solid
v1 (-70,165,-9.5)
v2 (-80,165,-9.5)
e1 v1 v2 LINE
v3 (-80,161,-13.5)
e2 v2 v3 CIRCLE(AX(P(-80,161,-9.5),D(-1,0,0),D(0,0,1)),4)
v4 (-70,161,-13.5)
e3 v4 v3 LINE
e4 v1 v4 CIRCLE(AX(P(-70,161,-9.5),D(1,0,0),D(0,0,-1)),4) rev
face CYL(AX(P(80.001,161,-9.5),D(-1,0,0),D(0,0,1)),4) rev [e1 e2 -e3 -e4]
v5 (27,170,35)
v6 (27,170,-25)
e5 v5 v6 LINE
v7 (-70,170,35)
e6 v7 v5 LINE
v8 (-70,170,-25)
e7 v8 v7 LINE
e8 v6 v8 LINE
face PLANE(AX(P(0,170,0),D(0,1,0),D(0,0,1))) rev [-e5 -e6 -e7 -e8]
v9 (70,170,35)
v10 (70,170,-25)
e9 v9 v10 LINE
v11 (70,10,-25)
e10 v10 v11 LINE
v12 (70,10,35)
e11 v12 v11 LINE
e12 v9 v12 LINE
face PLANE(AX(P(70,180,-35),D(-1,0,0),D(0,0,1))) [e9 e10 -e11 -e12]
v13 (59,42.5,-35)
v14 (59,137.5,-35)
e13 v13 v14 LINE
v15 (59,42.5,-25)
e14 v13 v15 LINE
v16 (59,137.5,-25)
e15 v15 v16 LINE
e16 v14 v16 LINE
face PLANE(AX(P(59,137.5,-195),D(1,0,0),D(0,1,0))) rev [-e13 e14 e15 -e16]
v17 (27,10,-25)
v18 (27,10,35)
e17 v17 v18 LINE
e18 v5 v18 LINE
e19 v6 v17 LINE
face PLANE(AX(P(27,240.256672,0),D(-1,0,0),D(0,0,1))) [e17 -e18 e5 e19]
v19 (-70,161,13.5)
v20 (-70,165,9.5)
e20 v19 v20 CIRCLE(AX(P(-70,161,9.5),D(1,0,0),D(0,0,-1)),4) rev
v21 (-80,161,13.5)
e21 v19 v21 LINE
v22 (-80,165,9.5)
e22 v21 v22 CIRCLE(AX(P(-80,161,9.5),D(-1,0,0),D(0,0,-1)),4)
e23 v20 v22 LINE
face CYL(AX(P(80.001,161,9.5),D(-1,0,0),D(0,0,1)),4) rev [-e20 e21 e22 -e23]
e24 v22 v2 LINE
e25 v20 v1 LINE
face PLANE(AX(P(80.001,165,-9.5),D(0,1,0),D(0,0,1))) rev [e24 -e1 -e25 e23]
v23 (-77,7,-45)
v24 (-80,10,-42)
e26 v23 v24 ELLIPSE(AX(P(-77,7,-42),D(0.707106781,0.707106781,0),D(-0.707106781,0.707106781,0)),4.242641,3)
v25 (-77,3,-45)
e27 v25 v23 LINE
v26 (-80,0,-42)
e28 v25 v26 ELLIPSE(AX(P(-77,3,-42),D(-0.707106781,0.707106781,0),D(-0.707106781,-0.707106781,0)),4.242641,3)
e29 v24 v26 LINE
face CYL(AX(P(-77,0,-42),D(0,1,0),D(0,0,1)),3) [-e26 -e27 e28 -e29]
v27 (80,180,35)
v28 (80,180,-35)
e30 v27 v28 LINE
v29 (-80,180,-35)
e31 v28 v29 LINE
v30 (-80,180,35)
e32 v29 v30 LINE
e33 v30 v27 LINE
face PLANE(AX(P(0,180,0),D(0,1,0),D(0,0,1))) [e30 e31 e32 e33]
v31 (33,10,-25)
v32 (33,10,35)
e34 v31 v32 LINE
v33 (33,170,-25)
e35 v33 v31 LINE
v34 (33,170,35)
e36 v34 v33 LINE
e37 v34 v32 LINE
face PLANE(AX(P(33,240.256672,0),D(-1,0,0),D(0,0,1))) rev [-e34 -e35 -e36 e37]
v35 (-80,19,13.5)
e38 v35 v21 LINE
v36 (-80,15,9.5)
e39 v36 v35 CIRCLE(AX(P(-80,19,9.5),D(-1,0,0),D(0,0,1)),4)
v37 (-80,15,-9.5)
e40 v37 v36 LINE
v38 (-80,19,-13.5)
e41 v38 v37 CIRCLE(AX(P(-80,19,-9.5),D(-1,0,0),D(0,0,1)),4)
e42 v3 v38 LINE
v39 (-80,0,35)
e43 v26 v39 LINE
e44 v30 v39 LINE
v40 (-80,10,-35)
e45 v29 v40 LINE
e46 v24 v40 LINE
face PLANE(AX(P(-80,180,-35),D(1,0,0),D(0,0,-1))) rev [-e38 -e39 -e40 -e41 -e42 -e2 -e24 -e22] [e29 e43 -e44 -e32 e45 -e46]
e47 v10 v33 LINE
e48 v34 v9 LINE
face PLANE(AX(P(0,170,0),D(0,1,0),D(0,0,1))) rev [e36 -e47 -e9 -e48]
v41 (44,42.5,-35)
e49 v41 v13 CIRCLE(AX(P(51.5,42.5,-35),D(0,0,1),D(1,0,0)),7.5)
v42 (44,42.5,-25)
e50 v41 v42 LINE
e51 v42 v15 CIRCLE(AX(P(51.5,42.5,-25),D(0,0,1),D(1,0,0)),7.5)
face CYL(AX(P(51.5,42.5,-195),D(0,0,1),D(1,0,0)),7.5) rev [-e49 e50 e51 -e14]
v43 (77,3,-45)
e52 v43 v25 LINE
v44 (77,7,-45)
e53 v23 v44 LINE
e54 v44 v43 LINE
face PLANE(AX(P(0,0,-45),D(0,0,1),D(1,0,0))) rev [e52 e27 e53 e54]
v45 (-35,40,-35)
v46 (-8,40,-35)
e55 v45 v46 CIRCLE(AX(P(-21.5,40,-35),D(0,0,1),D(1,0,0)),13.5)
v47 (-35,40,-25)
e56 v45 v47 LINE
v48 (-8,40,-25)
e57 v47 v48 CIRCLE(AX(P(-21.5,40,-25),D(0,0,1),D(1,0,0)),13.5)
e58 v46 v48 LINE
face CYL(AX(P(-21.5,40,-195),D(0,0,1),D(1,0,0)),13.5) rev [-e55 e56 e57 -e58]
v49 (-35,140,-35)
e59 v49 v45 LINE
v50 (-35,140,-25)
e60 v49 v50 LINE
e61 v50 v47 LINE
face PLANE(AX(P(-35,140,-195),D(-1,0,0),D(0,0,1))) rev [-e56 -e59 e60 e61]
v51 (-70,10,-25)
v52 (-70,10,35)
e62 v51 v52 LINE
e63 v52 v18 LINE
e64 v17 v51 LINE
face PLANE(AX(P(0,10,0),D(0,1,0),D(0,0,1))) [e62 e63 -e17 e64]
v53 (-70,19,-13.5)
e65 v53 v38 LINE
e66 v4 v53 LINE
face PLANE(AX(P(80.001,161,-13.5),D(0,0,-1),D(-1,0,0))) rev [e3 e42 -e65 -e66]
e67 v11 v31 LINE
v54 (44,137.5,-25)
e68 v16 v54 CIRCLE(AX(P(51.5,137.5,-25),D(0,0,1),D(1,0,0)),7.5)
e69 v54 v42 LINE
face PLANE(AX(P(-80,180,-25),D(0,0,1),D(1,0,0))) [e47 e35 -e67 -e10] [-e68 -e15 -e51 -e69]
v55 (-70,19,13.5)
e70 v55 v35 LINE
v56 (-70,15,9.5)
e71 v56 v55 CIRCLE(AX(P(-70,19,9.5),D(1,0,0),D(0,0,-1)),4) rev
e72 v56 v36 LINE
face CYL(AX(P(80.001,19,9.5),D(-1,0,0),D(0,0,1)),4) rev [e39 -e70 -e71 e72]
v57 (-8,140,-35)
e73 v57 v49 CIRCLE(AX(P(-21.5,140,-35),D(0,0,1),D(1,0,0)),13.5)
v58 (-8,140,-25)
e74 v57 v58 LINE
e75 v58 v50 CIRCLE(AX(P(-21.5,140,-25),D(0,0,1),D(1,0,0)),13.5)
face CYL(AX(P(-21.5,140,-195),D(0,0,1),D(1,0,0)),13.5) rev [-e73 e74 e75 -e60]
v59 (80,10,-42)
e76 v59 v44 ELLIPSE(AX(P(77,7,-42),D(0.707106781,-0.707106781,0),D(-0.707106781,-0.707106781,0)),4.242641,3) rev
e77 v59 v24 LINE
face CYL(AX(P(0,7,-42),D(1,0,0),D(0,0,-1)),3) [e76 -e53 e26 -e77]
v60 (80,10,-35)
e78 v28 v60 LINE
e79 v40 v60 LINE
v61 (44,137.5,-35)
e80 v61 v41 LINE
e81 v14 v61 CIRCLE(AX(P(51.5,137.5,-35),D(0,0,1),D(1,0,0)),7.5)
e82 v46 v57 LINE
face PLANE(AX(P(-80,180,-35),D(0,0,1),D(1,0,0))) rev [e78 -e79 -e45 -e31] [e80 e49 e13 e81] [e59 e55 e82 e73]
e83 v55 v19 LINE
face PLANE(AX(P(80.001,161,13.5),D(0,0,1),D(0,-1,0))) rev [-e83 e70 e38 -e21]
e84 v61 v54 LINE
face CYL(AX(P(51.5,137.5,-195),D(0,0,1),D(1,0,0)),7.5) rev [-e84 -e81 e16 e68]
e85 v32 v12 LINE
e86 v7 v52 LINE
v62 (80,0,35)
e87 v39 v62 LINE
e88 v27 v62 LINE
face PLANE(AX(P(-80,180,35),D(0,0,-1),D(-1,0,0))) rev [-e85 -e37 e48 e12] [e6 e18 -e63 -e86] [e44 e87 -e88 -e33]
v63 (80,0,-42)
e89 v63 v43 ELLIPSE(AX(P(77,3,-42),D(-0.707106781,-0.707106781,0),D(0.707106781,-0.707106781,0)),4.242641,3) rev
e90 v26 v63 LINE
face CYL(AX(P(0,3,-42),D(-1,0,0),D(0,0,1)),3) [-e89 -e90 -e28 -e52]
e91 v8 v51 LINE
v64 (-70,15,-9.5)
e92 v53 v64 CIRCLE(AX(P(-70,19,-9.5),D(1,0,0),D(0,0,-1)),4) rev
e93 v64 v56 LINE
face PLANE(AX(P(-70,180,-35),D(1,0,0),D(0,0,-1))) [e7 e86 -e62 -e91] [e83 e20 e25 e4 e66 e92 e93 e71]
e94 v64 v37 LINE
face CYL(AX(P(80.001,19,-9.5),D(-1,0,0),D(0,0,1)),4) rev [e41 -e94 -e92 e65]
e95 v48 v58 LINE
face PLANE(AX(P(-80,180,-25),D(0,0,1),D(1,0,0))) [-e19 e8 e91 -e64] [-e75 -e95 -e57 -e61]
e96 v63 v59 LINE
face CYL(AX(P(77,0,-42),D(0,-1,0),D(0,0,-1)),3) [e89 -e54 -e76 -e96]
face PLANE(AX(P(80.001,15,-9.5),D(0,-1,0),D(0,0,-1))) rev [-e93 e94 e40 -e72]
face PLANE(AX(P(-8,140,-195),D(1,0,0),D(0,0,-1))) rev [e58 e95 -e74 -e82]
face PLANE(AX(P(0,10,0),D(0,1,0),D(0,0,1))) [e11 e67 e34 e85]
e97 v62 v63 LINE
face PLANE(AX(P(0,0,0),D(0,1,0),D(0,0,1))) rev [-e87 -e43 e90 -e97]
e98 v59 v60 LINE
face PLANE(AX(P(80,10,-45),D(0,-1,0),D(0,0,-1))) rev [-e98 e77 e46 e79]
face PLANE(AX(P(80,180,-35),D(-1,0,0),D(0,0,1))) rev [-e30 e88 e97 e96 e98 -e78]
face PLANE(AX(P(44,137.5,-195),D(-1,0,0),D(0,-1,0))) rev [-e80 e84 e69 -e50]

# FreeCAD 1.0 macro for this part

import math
import FreeCAD as App
import Part
import Sketcher
from FreeCAD import Vector
Q = App.Units.Quantity


def edges_at(feature, points):
    """Names of the edges that pass closest to the given points."""
    edges = feature.Shape.Edges
    near = lambda p: min(range(len(edges)), key=lambda i: edges[i].distToShape(Part.Vertex(*p))[0])
    return sorted({f"Edge{near(p) + 1}" for p in points})


def faces_at(feature, points):
    """Names of the faces that lie closest to the given points."""
    faces = feature.Shape.Faces
    near = lambda p: min(range(len(faces)), key=lambda i: faces[i].distToShape(Part.Vertex(*p))[0])
    return sorted({f"Face{near(p) + 1}" for p in points})

doc = App.newDocument("Part")
body = doc.addObject("PartDesign::Body", "Body")

# Sketch on XZ plane
sketch1 = doc.addObject("Sketcher::SketchObject", "Sketch")
body.addObject(sketch1)
sketch1.AttachmentSupport = (doc.XZ_Plane, [""])
sketch1.MapMode = "FlatFace"
sketch1.addGeometry([
    Part.LineSegment(Vector(-80, -35, 0), Vector(-80, 35, 0)),
    Part.LineSegment(Vector(-80, 35, 0), Vector(80, 35, 0)),
    Part.LineSegment(Vector(80, 35, 0), Vector(80, -35, 0)),
    Part.LineSegment(Vector(80, -35, 0), Vector(-80, -35, 0)),
], False)
sketch1.addConstraint([
    Sketcher.Constraint("Coincident", 0, 2, 1, 1),
    Sketcher.Constraint("Coincident", 1, 2, 2, 1),
    Sketcher.Constraint("Coincident", 2, 2, 3, 1),
    Sketcher.Constraint("Coincident", 3, 2, 0, 1),
    Sketcher.Constraint("Vertical", 0),
    Sketcher.Constraint("Horizontal", 1),
    Sketcher.Constraint("Vertical", 2),
    Sketcher.Constraint("Horizontal", 3),
    Sketcher.Constraint("Symmetric", 0, 2, 2, 2, -1, 1),
    Sketcher.Constraint("DistanceX", 1, 1, 1, 2, Q("160 mm")),
    Sketcher.Constraint("DistanceY", 0, 1, 0, 2, Q("70 mm")),
])
pad1 = doc.addObject("PartDesign::Pad", "Pad")
body.addObject(pad1)
pad1.Profile = sketch1
pad1.Length = 180
pad1.Reversed = True
doc.recompute()

thickness = doc.addObject("PartDesign::Thickness", "Thickness")
body.addObject(thickness)
thickness.Base = (pad1, faces_at(pad1, [(0, 90, 35)]))
thickness.Value = 10
thickness.Reversed = True
thickness.Join = "Intersection"

# Sketch on XZ plane
sketch2 = doc.addObject("Sketcher::SketchObject", "Sketch001")
body.addObject(sketch2)
sketch2.AttachmentSupport = (doc.XZ_Plane, [""])
sketch2.MapMode = "FlatFace"
sketch2.addGeometry([
    Part.LineSegment(Vector(33, -35, 0), Vector(33, 35, 0)),
    Part.LineSegment(Vector(33, 35, 0), Vector(27, 35, 0)),
    Part.LineSegment(Vector(27, 35, 0), Vector(27, -35, 0)),
    Part.LineSegment(Vector(27, -35, 0), Vector(33, -35, 0)),
], False)
sketch2.addConstraint([
    Sketcher.Constraint("Coincident", 0, 2, 1, 1),
    Sketcher.Constraint("Coincident", 1, 2, 2, 1),
    Sketcher.Constraint("Coincident", 2, 2, 3, 1),
    Sketcher.Constraint("Coincident", 3, 2, 0, 1),
    Sketcher.Constraint("Vertical", 0),
    Sketcher.Constraint("Horizontal", 1),
    Sketcher.Constraint("Vertical", 2),
    Sketcher.Constraint("Horizontal", 3),
    Sketcher.Constraint("DistanceX", 1, 2, 1, 1, Q("6 mm")),
    Sketcher.Constraint("DistanceY", 0, 1, 0, 2, Q("70 mm")),
    Sketcher.Constraint("DistanceX", -1, 1, 0, 2, Q("33 mm")),
    Sketcher.Constraint("DistanceY", -1, 1, 0, 2, Q("35 mm")),
])
pad2 = doc.addObject("PartDesign::Pad", "Pad001")
body.addObject(pad2)
pad2.Profile = sketch2
pad2.Length = 170
pad2.Reversed = True

# Sketch on XY plane
sketch3 = doc.addObject("Sketcher::SketchObject", "Sketch002")
body.addObject(sketch3)
sketch3.AttachmentSupport = (doc.XY_Plane, [""])
sketch3.MapMode = "FlatFace"
sketch3.AttachmentOffset = App.Placement(Vector(0, 0, -25), App.Rotation())
sketch3.addGeometry([
    Part.LineSegment(Vector(-8, 40, 0), Vector(-8, 140, 0)),
    Part.ArcOfCircle(Part.Circle(Vector(-22, 140, 0), Vector(0, 0, 1), 14), math.radians(0), math.radians(180)),
    Part.LineSegment(Vector(-35, 140, 0), Vector(-35, 40, 0)),
    Part.ArcOfCircle(Part.Circle(Vector(-22, 40, 0), Vector(0, 0, 1), 14), math.radians(180), math.radians(360)),
], False)
sketch3.addConstraint([
    Sketcher.Constraint("Tangent", 0, 2, 1, 1),
    Sketcher.Constraint("Tangent", 1, 2, 2, 1),
    Sketcher.Constraint("Tangent", 2, 2, 3, 1),
    Sketcher.Constraint("Tangent", 3, 2, 0, 1),
    Sketcher.Constraint("Vertical", 0),
    Sketcher.Constraint("Vertical", 2),
    Sketcher.Constraint("Radius", 1, Q("13.5 mm")),
    Sketcher.Constraint("DistanceY", 0, 1, 0, 2, Q("100 mm")),
    Sketcher.Constraint("DistanceY", -1, 1, 1, 3, Q("140 mm")),
    Sketcher.Constraint("DistanceX", 0, 2, -1, 1, Q("8 mm")),
])
pocket1 = doc.addObject("PartDesign::Pocket", "Pocket")
body.addObject(pocket1)
pocket1.Profile = sketch3
pocket1.Length = 170

# Sketch on XY plane
sketch4 = doc.addObject("Sketcher::SketchObject", "Sketch003")
body.addObject(sketch4)
sketch4.AttachmentSupport = (doc.XY_Plane, [""])
sketch4.MapMode = "FlatFace"
sketch4.AttachmentOffset = App.Placement(Vector(0, 0, -25), App.Rotation())
sketch4.addGeometry([
    Part.LineSegment(Vector(59, 42, 0), Vector(59, 138, 0)),
    Part.ArcOfCircle(Part.Circle(Vector(52, 138, 0), Vector(0, 0, 1), 8), math.radians(0), math.radians(180)),
    Part.LineSegment(Vector(44, 138, 0), Vector(44, 42, 0)),
    Part.ArcOfCircle(Part.Circle(Vector(52, 42, 0), Vector(0, 0, 1), 8), math.radians(180), math.radians(360)),
], False)
sketch4.addConstraint([
    Sketcher.Constraint("Tangent", 0, 2, 1, 1),
    Sketcher.Constraint("Tangent", 1, 2, 2, 1),
    Sketcher.Constraint("Tangent", 2, 2, 3, 1),
    Sketcher.Constraint("Tangent", 3, 2, 0, 1),
    Sketcher.Constraint("Vertical", 0),
    Sketcher.Constraint("Vertical", 2),
    Sketcher.Constraint("Radius", 1, Q("7.5 mm")),
    Sketcher.Constraint("DistanceY", 0, 1, 0, 2, Q("95 mm")),
    Sketcher.Constraint("DistanceX", -1, 1, 0, 2, Q("59 mm")),
    Sketcher.Constraint("DistanceY", -1, 1, 1, 3, Q("137.5 mm")),
])
pocket2 = doc.addObject("PartDesign::Pocket", "Pocket001")
body.addObject(pocket2)
pocket2.Profile = sketch4
pocket2.Length = 170

# Sketch on YZ plane
sketch5 = doc.addObject("Sketcher::SketchObject", "Sketch004")
body.addObject(sketch5)
sketch5.AttachmentSupport = (doc.YZ_Plane, [""])
sketch5.MapMode = "FlatFace"
sketch5.AttachmentOffset = App.Placement(Vector(0, 0, -80), App.Rotation())
sketch5.addGeometry([
    Part.LineSegment(Vector(165, 9.5, 0), Vector(165, -9.5, 0)),  # 0
    Part.ArcOfCircle(Part.Circle(Vector(161, -9.5, 0), Vector(0, 0, 1), 4), math.radians(-90), math.radians(0)),  # 1
    Part.LineSegment(Vector(161, -13.5, 0), Vector(19, -13.5, 0)),  # 2
    Part.ArcOfCircle(Part.Circle(Vector(19, -9.5, 0), Vector(0, 0, 1), 4), math.radians(180), math.radians(270)),  # 3
    Part.LineSegment(Vector(15, -9.5, 0), Vector(15, 9.5, 0)),  # 4
    Part.ArcOfCircle(Part.Circle(Vector(19, 9.5, 0), Vector(0, 0, 1), 4), math.radians(90), math.radians(180)),  # 5
    Part.LineSegment(Vector(19, 13.5, 0), Vector(161, 13.5, 0)),  # 6
    Part.ArcOfCircle(Part.Circle(Vector(161, 9.5, 0), Vector(0, 0, 1), 4), math.radians(0), math.radians(90)),  # 7
], False)
sketch5.addConstraint([
    Sketcher.Constraint("Tangent", 0, 2, 1, 2),
    Sketcher.Constraint("Tangent", 1, 1, 2, 1),
    Sketcher.Constraint("Tangent", 2, 2, 3, 2),
    Sketcher.Constraint("Tangent", 3, 1, 4, 1),
    Sketcher.Constraint("Tangent", 4, 2, 5, 2),
    Sketcher.Constraint("Tangent", 5, 1, 6, 1),
    Sketcher.Constraint("Tangent", 6, 2, 7, 2),
    Sketcher.Constraint("Tangent", 7, 1, 0, 1),
    Sketcher.Constraint("Vertical", 0),
    Sketcher.Constraint("Horizontal", 2),
    Sketcher.Constraint("Vertical", 4),
    Sketcher.Constraint("Horizontal", 6),
    Sketcher.Constraint("Equal", 1, 3),
    Sketcher.Constraint("Equal", 3, 5),
    Sketcher.Constraint("Equal", 5, 7),
    Sketcher.Constraint("Radius", 1, Q("4 mm")),
    Sketcher.Constraint("DistanceX", 2, 2, 2, 1, Q("142 mm")),
    Sketcher.Constraint("DistanceY", 0, 2, 0, 1, Q("19 mm")),
    Sketcher.Constraint("DistanceX", -1, 1, 1, 3, Q("161 mm")),
    Sketcher.Constraint("DistanceY", 1, 3, -1, 1, Q("9.5 mm")),
])
pocket3 = doc.addObject("PartDesign::Pocket", "Pocket002")
body.addObject(pocket3)
pocket3.Profile = sketch5
pocket3.Type = "UpToFirst"
pocket3.Reversed = True

# Sketch on XY plane
sketch6 = doc.addObject("Sketcher::SketchObject", "Sketch005")
body.addObject(sketch6)
sketch6.AttachmentSupport = (doc.XY_Plane, [""])
sketch6.MapMode = "FlatFace"
sketch6.AttachmentOffset = App.Placement(Vector(0, 0, -35), App.Rotation())
sketch6.addGeometry([
    Part.LineSegment(Vector(80, 10, 0), Vector(80, 0, 0)),
    Part.LineSegment(Vector(80, 0, 0), Vector(-80, 0, 0)),
    Part.LineSegment(Vector(-80, 0, 0), Vector(-80, 10, 0)),
    Part.LineSegment(Vector(-80, 10, 0), Vector(80, 10, 0)),
], False)
sketch6.addConstraint([
    Sketcher.Constraint("Coincident", 0, 2, 1, 1),
    Sketcher.Constraint("Coincident", 1, 2, 2, 1),
    Sketcher.Constraint("Coincident", 2, 2, 3, 1),
    Sketcher.Constraint("Coincident", 3, 2, 0, 1),
    Sketcher.Constraint("Vertical", 0),
    Sketcher.Constraint("Horizontal", 1),
    Sketcher.Constraint("Vertical", 2),
    Sketcher.Constraint("Horizontal", 3),
    Sketcher.Constraint("Symmetric", 0, 2, 1, 2, -1, 1),
    Sketcher.Constraint("DistanceX", 1, 2, 1, 1, Q("160 mm")),
    Sketcher.Constraint("DistanceY", 0, 2, 0, 1, Q("10 mm")),
])
pad3 = doc.addObject("PartDesign::Pad", "Pad002")
body.addObject(pad3)
pad3.Profile = sketch6
pad3.Length = 10
pad3.Reversed = True
doc.recompute()

fillet = doc.addObject("PartDesign::Fillet", "Fillet")
body.addObject(fillet)
fillet.Base = (pad3, edges_at(pad3, [
    (80, 5, -45),
    (0, 0, -45),
    (-80, 5, -45),
    (0, 10, -45),
]))
fillet.Radius = 3

doc.recompute()
